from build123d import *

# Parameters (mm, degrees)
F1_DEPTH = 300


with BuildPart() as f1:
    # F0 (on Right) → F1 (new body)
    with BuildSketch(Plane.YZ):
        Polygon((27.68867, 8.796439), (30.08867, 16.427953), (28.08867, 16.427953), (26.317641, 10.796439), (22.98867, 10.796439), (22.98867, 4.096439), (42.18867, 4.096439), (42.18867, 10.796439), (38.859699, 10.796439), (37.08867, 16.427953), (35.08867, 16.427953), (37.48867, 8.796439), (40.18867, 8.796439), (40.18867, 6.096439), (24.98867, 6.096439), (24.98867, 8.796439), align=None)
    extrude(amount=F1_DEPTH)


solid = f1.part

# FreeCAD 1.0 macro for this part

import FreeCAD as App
import Part
import Sketcher
from FreeCAD import Vector

doc = App.newDocument("Part")
params = doc.addObject("Spreadsheet::Sheet", "Params")
for row, (alias, value) in enumerate([
    ("sketch1_width", "2 mm"),
    ("sketch1_length", "8 mm"),
    ("sketch1_width2", "19.2 mm"),
    ("sketch1_width3", "2.7 mm"),
    ("sketch1_width4", "15.2 mm"),
    ("pad1_length", "300 mm"),
], start=1):
    params.set(f"A{row}", alias)
    params.set(f"B{row}", "=" + value)
    params.setAlias(f"B{row}", alias)

body = doc.addObject("PartDesign::Body", "Body")

# Sketch on YZ plane
sketch1 = body.newObject("Sketcher::SketchObject", "Sketch")
sketch1.AttachmentSupport = (doc.getObject("YZ_Plane"), [""])
sketch1.MapMode = "FlatFace"
sketch1.addGeometry([
    Part.LineSegment(Vector(27.7, 8.8, 0), Vector(30.1, 16.4, 0)),  # 0
    Part.LineSegment(Vector(30.1, 16.4, 0), Vector(28.1, 16.4, 0)),  # 1
    Part.LineSegment(Vector(28.1, 16.4, 0), Vector(26.3, 10.8, 0)),  # 2
    Part.LineSegment(Vector(26.3, 10.8, 0), Vector(23, 10.8, 0)),  # 3
    Part.LineSegment(Vector(23, 10.8, 0), Vector(23, 4.1, 0)),  # 4
    Part.LineSegment(Vector(23, 4.1, 0), Vector(42.2, 4.1, 0)),  # 5
    Part.LineSegment(Vector(42.2, 4.1, 0), Vector(42.2, 10.8, 0)),  # 6
    Part.LineSegment(Vector(42.2, 10.8, 0), Vector(38.9, 10.8, 0)),  # 7
    Part.LineSegment(Vector(38.9, 10.8, 0), Vector(37.1, 16.4, 0)),  # 8
    Part.LineSegment(Vector(37.1, 16.4, 0), Vector(35.1, 16.4, 0)),  # 9
    Part.LineSegment(Vector(35.1, 16.4, 0), Vector(37.5, 8.8, 0)),  # 10
    Part.LineSegment(Vector(37.5, 8.8, 0), Vector(40.2, 8.8, 0)),  # 11
    Part.LineSegment(Vector(40.2, 8.8, 0), Vector(40.2, 6.1, 0)),  # 12
    Part.LineSegment(Vector(40.2, 6.1, 0), Vector(25, 6.1, 0)),  # 13
    Part.LineSegment(Vector(25, 6.1, 0), Vector(25, 8.8, 0)),  # 14
    Part.LineSegment(Vector(25, 8.8, 0), Vector(27.7, 8.8, 0)),  # 15
], False)
sketch1.addConstraint([
    Sketcher.Constraint("Coincident", 0, 2, 1, 1),
    Sketcher.Constraint("Coincident", 1, 2, 2, 1),
    Sketcher.Constraint("Coincident", 2, 2, 3, 1),
    Sketcher.Constraint("Coincident", 3, 2, 4, 1),
    Sketcher.Constraint("Coincident", 4, 2, 5, 1),
    Sketcher.Constraint("Coincident", 5, 2, 6, 1),
    Sketcher.Constraint("Coincident", 6, 2, 7, 1),
    Sketcher.Constraint("Coincident", 7, 2, 8, 1),
    Sketcher.Constraint("Coincident", 8, 2, 9, 1),
    Sketcher.Constraint("Coincident", 9, 2, 10, 1),
    Sketcher.Constraint("Coincident", 10, 2, 11, 1),
    Sketcher.Constraint("Coincident", 11, 2, 12, 1),
    Sketcher.Constraint("Coincident", 12, 2, 13, 1),
    Sketcher.Constraint("Coincident", 13, 2, 14, 1),
    Sketcher.Constraint("Coincident", 14, 2, 15, 1),
    Sketcher.Constraint("Coincident", 15, 2, 0, 1),
    Sketcher.Constraint("Horizontal", 1),
    Sketcher.Constraint("Horizontal", 3),
    Sketcher.Constraint("Vertical", 4),
    Sketcher.Constraint("Horizontal", 5),
    Sketcher.Constraint("Vertical", 6),
    Sketcher.Constraint("Horizontal", 7),
    Sketcher.Constraint("Horizontal", 9),
    Sketcher.Constraint("Horizontal", 11),
    Sketcher.Constraint("Vertical", 12),
    Sketcher.Constraint("Horizontal", 13),
    Sketcher.Constraint("Vertical", 14),
    Sketcher.Constraint("Horizontal", 15),
    Sketcher.Constraint("Parallel", 0, 2),
    Sketcher.Constraint("Parallel", 8, 10),
    Sketcher.Constraint("Horizontal", 3, 2, 6, 2),
    Sketcher.Constraint("Horizontal", 1, 2, 8, 2),
    Sketcher.Constraint("Horizontal", 11, 2, 14, 2),
    Sketcher.Constraint("Equal", 3, 7),
    Sketcher.Constraint("Equal", 1, 9),
    Sketcher.Constraint("Equal", 11, 15),
    Sketcher.Constraint("Equal", 15, 12),
    Sketcher.Constraint("Equal", 2, 8),
    Sketcher.Constraint("DistanceX", 1, 2, 1, 1, 2.0),
    Sketcher.Constraint("Distance", 0, 8.0),
    Sketcher.Constraint("DistanceX", 5, 1, 5, 2, 19.2),
    Sketcher.Constraint("DistanceX", 11, 1, 11, 2, 2.7),
    Sketcher.Constraint("DistanceX", 13, 2, 13, 1, 15.2),
    Sketcher.Constraint("DistanceY", 4, 2, 4, 1, 6.7),
    Sketcher.Constraint("DistanceX", 0, 2, 8, 2, 7.0),
    Sketcher.Constraint("DistanceY", 10, 2, 7, 2, 2.0),
    Sketcher.Constraint("DistanceX", -1, 1, 7, 2, 38.859699),
    Sketcher.Constraint("DistanceY", -1, 1, 2, 2, 10.796439),
])
sketch1.setExpression("Constraints[38]", "Params.sketch1_width")
sketch1.setExpression("Constraints[39]", "Params.sketch1_length")
sketch1.setExpression("Constraints[40]", "Params.sketch1_width2")
sketch1.setExpression("Constraints[41]", "Params.sketch1_width3")
sketch1.setExpression("Constraints[42]", "Params.sketch1_width4")
pad1 = body.newObject("PartDesign::Pad", "Pad")
pad1.Profile = sketch1
pad1.setExpression("Length", "Params.pad1_length")

doc.recompute()
